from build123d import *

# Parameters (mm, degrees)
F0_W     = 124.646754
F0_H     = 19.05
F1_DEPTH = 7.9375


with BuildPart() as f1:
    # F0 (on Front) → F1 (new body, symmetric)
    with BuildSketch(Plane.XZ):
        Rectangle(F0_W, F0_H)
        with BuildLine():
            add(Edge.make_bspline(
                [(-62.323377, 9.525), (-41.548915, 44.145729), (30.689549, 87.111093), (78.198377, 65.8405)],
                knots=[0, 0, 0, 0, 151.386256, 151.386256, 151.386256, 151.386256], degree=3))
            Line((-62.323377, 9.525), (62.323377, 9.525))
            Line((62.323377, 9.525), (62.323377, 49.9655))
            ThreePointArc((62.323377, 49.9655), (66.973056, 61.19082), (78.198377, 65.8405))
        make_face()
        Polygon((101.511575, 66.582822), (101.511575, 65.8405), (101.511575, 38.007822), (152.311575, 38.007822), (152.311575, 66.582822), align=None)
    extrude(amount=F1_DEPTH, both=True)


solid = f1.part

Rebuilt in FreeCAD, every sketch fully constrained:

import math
import FreeCAD as App
import Part
import Sketcher
Q = App.Units.Quantity

doc = App.newDocument("Part")
body = doc.addObject("PartDesign::Body", "Body")
body.AllowCompound = True

# Sketch on XZ plane
sketch1 = doc.addObject("Sketcher::SketchObject", "Sketch")
body.addObject(sketch1)
sketch1.AttachmentSupport = (doc.XZ_Plane, [""])
sketch1.MapMode = "FlatFace"
sketch1.addGeometry([
    Part.LineSegment(App.Vector(-62.323377, 9.525, 0), App.Vector(-62.323377, -9.525, 0)),  # 0
    Part.LineSegment(App.Vector(-62.323377, -9.525, 0), App.Vector(62.323377, -9.525, 0)),  # 1
    Part.LineSegment(App.Vector(62.323377, -9.525, 0), App.Vector(62.323377, 49.9655, 0)),  # 2
    Part.ArcOfCircle(Part.Circle(App.Vector(78.198376, 49.965501, 0), App.Vector(0, 0, 1), 15.874999), math.radians(89.999996), math.radians(180.000004)),  # 3
    Part.BSplineCurve([App.Vector(-62.323377, 9.525, 0), App.Vector(-41.548915, 44.145729, 0), App.Vector(30.689549, 87.111093, 0), App.Vector(78.198377, 65.8405, 0)], [4, 4], [0, 151.386256], False, 3, [1, 1, 1, 1], False),  # 4
    Part.LineSegment(App.Vector(101.511575, 66.582822, 0), App.Vector(101.511575, 38.007822, 0)),  # 5
    Part.LineSegment(App.Vector(101.511575, 38.007822, 0), App.Vector(152.311575, 38.007822, 0)),  # 6
    Part.LineSegment(App.Vector(152.311575, 38.007822, 0), App.Vector(152.311575, 66.582822, 0)),  # 7
    Part.LineSegment(App.Vector(152.311575, 66.582822, 0), App.Vector(101.511575, 66.582822, 0)),  # 8
], False)
sketch1.addConstraint([
    Sketcher.Constraint("Block", 4),
    Sketcher.Constraint("Coincident", 0, 2, 1, 1),
    Sketcher.Constraint("Coincident", 1, 2, 2, 1),
    Sketcher.Constraint("Tangent", 2, 2, 3, 2),
    Sketcher.Constraint("Coincident", 3, 1, 4, 2),
    Sketcher.Constraint("Coincident", 4, 1, 0, 1),
    Sketcher.Constraint("Coincident", 5, 2, 6, 1),
    Sketcher.Constraint("Coincident", 6, 2, 7, 1),
    Sketcher.Constraint("Coincident", 7, 2, 8, 1),
    Sketcher.Constraint("Coincident", 8, 2, 5, 1),
    Sketcher.Constraint("Vertical", 0),
    Sketcher.Constraint("Horizontal", 1),
    Sketcher.Constraint("Vertical", 2),
    Sketcher.Constraint("Vertical", 5),
    Sketcher.Constraint("Horizontal", 6),
    Sketcher.Constraint("Vertical", 7),
    Sketcher.Constraint("Horizontal", 8),
    Sketcher.Constraint("DistanceX", 6, 1, 6, 2, Q("2 in")),
    Sketcher.Constraint("Radius", 3, Q("0.625 in")),
    Sketcher.Constraint("DistanceY", 0, 2, 0, 1, Q("0.75 in")),
    Sketcher.Constraint("DistanceY", 5, 2, 5, 1, Q("1.125 in")),
    Sketcher.Constraint("DistanceX", 2, 2, 3, 1, Q("0.625 in")),
    Sketcher.Constraint("DistanceX", 3, 3, 5, 2, 23.313199),
    Sketcher.Constraint("DistanceY", -1, 1, 5, 2, 38.007822),
])
pad1 = doc.addObject("PartDesign::Pad", "Pad")
body.addObject(pad1)
pad1.Profile = sketch1
pad1.Length = Q("0.625 in")
pad1.Midplane = True

doc.recompute()
